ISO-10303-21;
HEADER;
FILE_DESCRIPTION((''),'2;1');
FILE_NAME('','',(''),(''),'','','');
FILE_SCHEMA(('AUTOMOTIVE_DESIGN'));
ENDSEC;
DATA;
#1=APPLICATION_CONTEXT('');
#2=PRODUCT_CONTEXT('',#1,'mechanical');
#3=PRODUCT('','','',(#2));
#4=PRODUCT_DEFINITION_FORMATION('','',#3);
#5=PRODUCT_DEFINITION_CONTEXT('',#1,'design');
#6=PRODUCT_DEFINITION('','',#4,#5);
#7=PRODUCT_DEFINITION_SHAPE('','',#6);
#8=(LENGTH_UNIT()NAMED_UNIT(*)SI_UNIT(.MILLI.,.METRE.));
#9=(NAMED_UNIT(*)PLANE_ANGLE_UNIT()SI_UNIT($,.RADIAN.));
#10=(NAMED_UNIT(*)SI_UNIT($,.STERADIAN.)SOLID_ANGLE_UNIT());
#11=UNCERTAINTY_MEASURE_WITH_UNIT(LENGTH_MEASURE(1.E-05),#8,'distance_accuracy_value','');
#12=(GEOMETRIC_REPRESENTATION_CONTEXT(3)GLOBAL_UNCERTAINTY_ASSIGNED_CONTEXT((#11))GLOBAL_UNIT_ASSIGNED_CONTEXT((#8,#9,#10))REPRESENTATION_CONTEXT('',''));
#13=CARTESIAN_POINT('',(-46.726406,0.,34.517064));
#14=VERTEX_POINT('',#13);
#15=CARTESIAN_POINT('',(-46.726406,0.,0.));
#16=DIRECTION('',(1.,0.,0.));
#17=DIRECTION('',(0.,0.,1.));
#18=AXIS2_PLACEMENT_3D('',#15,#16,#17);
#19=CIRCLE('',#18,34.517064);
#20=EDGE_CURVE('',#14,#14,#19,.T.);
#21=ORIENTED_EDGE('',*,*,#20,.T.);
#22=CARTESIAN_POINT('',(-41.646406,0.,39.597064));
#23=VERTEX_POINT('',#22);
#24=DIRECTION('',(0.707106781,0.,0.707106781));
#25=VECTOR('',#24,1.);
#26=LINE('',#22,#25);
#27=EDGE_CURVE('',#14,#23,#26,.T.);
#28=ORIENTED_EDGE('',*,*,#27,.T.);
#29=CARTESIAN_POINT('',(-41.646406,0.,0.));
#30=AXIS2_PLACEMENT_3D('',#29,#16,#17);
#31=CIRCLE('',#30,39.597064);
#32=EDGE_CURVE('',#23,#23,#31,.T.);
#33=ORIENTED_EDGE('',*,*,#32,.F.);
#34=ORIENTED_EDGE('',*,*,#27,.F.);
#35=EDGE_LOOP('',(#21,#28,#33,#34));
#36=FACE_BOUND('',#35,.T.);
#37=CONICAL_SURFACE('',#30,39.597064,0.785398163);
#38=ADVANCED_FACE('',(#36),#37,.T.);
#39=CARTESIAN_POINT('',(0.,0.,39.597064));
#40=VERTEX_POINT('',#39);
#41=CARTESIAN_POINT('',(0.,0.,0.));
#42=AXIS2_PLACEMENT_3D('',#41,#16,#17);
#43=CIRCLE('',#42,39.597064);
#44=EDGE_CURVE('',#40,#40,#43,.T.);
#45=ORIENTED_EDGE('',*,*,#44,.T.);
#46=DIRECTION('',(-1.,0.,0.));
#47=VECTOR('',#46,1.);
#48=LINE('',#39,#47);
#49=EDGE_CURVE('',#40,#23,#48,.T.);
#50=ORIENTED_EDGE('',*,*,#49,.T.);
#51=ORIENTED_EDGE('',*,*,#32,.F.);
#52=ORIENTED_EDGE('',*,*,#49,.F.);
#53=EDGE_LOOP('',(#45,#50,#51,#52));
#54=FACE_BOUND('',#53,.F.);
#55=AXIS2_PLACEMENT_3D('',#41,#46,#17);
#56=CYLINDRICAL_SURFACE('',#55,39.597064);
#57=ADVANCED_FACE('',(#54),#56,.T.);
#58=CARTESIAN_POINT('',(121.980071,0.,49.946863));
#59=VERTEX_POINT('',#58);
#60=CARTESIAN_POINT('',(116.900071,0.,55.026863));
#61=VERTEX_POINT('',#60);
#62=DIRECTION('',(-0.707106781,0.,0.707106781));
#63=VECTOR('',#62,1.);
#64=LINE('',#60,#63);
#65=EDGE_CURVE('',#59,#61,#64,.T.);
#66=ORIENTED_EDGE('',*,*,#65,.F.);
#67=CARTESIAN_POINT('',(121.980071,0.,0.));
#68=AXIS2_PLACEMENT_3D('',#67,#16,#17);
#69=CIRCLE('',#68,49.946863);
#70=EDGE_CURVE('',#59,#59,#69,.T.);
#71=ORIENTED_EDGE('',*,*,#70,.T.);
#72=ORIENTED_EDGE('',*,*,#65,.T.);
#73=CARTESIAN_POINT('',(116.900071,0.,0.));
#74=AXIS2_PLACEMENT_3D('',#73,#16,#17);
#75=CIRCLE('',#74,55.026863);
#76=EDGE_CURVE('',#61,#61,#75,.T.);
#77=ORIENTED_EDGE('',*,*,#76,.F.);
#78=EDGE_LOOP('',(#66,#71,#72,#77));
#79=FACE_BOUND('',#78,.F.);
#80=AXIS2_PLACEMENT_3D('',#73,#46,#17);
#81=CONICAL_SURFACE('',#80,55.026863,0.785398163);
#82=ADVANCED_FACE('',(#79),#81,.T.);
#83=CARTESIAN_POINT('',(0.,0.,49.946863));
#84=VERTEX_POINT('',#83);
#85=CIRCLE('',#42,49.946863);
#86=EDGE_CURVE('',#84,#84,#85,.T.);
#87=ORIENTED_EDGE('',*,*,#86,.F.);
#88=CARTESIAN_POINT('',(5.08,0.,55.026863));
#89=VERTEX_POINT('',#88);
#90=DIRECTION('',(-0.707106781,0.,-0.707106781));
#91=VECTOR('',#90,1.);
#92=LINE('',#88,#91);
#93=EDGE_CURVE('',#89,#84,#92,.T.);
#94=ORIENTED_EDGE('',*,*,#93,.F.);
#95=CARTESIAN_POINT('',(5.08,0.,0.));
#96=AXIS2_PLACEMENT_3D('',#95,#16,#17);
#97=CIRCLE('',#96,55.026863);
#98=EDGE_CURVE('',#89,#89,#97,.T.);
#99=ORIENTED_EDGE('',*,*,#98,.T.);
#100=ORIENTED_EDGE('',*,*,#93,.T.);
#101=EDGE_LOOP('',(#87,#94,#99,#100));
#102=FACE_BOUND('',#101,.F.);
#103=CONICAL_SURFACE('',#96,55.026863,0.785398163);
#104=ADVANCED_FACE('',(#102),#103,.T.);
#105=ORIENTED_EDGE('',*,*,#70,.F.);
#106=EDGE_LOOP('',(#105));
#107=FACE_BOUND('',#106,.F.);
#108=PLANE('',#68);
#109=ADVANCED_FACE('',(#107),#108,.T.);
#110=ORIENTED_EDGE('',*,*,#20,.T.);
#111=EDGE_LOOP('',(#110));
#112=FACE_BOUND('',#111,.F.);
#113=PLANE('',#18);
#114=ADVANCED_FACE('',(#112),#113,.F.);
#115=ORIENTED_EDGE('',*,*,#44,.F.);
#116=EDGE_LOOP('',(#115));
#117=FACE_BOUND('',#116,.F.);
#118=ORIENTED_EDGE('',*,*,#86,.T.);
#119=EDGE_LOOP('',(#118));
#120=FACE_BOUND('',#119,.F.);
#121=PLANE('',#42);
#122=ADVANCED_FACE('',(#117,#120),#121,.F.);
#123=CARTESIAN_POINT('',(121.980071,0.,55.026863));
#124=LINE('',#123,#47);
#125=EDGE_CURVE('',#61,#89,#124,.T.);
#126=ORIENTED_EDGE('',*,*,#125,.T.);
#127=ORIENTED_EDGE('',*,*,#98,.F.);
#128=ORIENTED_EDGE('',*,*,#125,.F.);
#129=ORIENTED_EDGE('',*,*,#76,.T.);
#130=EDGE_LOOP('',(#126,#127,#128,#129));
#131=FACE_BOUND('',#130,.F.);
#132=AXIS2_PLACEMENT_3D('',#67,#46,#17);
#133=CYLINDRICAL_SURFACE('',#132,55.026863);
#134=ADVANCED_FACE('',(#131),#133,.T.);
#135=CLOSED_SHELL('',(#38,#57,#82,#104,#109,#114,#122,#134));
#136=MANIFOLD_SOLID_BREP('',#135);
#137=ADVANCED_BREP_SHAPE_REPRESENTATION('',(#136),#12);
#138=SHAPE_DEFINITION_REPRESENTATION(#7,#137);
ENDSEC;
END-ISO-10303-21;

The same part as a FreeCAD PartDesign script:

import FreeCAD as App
import Part
import Sketcher

V = App.Vector


def edges_at(feature, points):
    """Names of the edges that pass closest to the given points."""
    edges = feature.Shape.Edges
    near = lambda p: min(range(len(edges)), key=lambda i: edges[i].distToShape(Part.Vertex(*p))[0])
    return sorted({f"Edge{near(p) + 1}" for p in points})

doc = App.newDocument("Part")
params = doc.addObject("Spreadsheet::Sheet", "Params")
for row, (alias, value) in enumerate([
    ("revolution_angle", "360 deg"),
    ("chamfer_size", "0.2 in"),
], start=1):
    params.set(f"A{row}", alias)
    params.set(f"B{row}", "=" + value)
    params.setAlias(f"B{row}", alias)

body = doc.addObject("PartDesign::Body", "Body")

# Sketch on XZ plane
sketch1 = body.newObject("Sketcher::SketchObject", "Sketch")
sketch1.AttachmentSupport = (doc.getObject("XZ_Plane"), [""])
sketch1.MapMode = "FlatFace"
sketch1.addGeometry(Part.LineSegment(V(-47, 40, 0), V(-47, 0, 0)), False)
sketch1.addGeometry(Part.LineSegment(V(-47, 0, 0), V(122, 0, 0)), False)
sketch1.addGeometry(Part.LineSegment(V(122, 0, 0), V(122, 55, 0)), False)
sketch1.addGeometry(Part.LineSegment(V(122, 55, 0), V(0, 55, 0)), False)
sketch1.addGeometry(Part.LineSegment(V(0, 55, 0), V(0, 40, 0)), False)
sketch1.addGeometry(Part.LineSegment(V(0, 40, 0), V(-47, 40, 0)), False)
sketch1.addConstraint(Sketcher.Constraint("Coincident", 0, 2, 1, 1))
sketch1.addConstraint(Sketcher.Constraint("Coincident", 1, 2, 2, 1))
sketch1.addConstraint(Sketcher.Constraint("Coincident", 2, 2, 3, 1))
sketch1.addConstraint(Sketcher.Constraint("Coincident", 3, 2, 4, 1))
sketch1.addConstraint(Sketcher.Constraint("Coincident", 4, 2, 5, 1))
sketch1.addConstraint(Sketcher.Constraint("Coincident", 5, 2, 0, 1))
sketch1.addConstraint(Sketcher.Constraint("Vertical", 0))
sketch1.addConstraint(Sketcher.Constraint("Horizontal", 1))
sketch1.addConstraint(Sketcher.Constraint("Vertical", 2))
sketch1.addConstraint(Sketcher.Constraint("Horizontal", 3))
sketch1.addConstraint(Sketcher.Constraint("Vertical", 4))
sketch1.addConstraint(Sketcher.Constraint("Horizontal", 5))
sketch1.addConstraint(Sketcher.Constraint("PointOnObject", 0, 2, -1))
sketch1.addConstraint(Sketcher.Constraint("PointOnObject", 3, 2, -2))
sketch1.addConstraint(Sketcher.Constraint("DistanceY", 4, 2, 4, 1, 15.429799))
sketch1.addConstraint(Sketcher.Constraint("DistanceX", 3, 2, 3, 1, 121.980071))
sketch1.addConstraint(Sketcher.Constraint("DistanceX", 1, 1, 1, 2, 168.706477))
sketch1.addConstraint(Sketcher.Constraint("DistanceY", 0, 2, 0, 1, 39.597064))
revolution = body.newObject("PartDesign::Revolution", "Revolution")
revolution.Profile = sketch1
revolution.ReferenceAxis = (sketch1, ["H_Axis"])
revolution.setExpression("Angle", "Params.revolution_angle")
doc.recompute()

chamfer = body.newObject("PartDesign::Chamfer", "Chamfer")
chamfer.Base = (revolution, edges_at(revolution, [(-46.726, 0, -39.597), (0, 0, -55.027), (121.98, 0, -55.027)]))
chamfer.setExpression("Size", "Params.chamfer_size")

doc.recompute()
